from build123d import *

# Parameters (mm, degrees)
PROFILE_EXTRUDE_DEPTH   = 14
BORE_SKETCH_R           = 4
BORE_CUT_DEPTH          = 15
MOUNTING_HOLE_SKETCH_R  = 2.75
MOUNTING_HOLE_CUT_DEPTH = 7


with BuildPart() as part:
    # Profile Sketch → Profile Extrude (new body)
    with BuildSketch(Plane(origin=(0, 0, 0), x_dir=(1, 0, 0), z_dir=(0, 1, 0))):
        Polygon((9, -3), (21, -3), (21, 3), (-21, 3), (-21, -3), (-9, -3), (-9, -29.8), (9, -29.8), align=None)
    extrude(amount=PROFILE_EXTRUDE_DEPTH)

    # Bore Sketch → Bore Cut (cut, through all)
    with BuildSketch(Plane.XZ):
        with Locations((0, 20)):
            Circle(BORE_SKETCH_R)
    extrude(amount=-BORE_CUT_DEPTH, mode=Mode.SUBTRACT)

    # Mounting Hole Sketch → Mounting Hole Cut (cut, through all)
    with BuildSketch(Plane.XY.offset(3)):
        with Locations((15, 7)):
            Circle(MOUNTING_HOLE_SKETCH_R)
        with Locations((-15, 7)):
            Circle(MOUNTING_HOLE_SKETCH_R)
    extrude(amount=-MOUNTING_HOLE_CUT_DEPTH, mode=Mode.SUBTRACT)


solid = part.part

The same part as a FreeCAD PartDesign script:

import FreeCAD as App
import Part
import Sketcher

V = App.Vector
Q = App.Units.Quantity

doc = App.newDocument("Part")
body = doc.addObject("PartDesign::Body", "Body")

# Sketch on XZ plane
sketch1 = body.newObject("Sketcher::SketchObject", "Sketch")
sketch1.AttachmentSupport = (doc.getObject("XZ_Plane"), [""])
sketch1.MapMode = "FlatFace"
sketch1.addGeometry(Part.LineSegment(V(9, 3, 0), V(21, 3, 0)), False)
sketch1.addGeometry(Part.LineSegment(V(21, 3, 0), V(21, -3, 0)), False)
sketch1.addGeometry(Part.LineSegment(V(21, -3, 0), V(-21, -3, 0)), False)
sketch1.addGeometry(Part.LineSegment(V(-21, -3, 0), V(-21, 3, 0)), False)
sketch1.addGeometry(Part.LineSegment(V(-21, 3, 0), V(-9, 3, 0)), False)
sketch1.addGeometry(Part.LineSegment(V(-9, 3, 0), V(-9, 30, 0)), False)
sketch1.addGeometry(Part.LineSegment(V(-9, 30, 0), V(9, 30, 0)), False)
sketch1.addGeometry(Part.LineSegment(V(9, 30, 0), V(9, 3, 0)), False)
sketch1.addConstraint(Sketcher.Constraint("Coincident", 0, 2, 1, 1))
sketch1.addConstraint(Sketcher.Constraint("Coincident", 1, 2, 2, 1))
sketch1.addConstraint(Sketcher.Constraint("Coincident", 2, 2, 3, 1))
sketch1.addConstraint(Sketcher.Constraint("Coincident", 3, 2, 4, 1))
sketch1.addConstraint(Sketcher.Constraint("Coincident", 4, 2, 5, 1))
sketch1.addConstraint(Sketcher.Constraint("Coincident", 5, 2, 6, 1))
sketch1.addConstraint(Sketcher.Constraint("Coincident", 6, 2, 7, 1))
sketch1.addConstraint(Sketcher.Constraint("Coincident", 7, 2, 0, 1))
sketch1.addConstraint(Sketcher.Constraint("Horizontal", 0))
sketch1.addConstraint(Sketcher.Constraint("Vertical", 1))
sketch1.addConstraint(Sketcher.Constraint("Horizontal", 2))
sketch1.addConstraint(Sketcher.Constraint("Vertical", 3))
sketch1.addConstraint(Sketcher.Constraint("Horizontal", 4))
sketch1.addConstraint(Sketcher.Constraint("Vertical", 5))
sketch1.addConstraint(Sketcher.Constraint("Horizontal", 6))
sketch1.addConstraint(Sketcher.Constraint("Vertical", 7))
sketch1.addConstraint(Sketcher.Constraint("Symmetric", 0, 2, 2, 2, -1, 1))
sketch1.addConstraint(Sketcher.Constraint("Symmetric", 4, 2, 7, 2, -2))
sketch1.addConstraint(Sketcher.Constraint("DistanceX", 0, 1, 0, 2, Q("12 mm")))
sketch1.addConstraint(Sketcher.Constraint("DistanceX", 2, 2, 2, 1, Q("42 mm")))
sketch1.addConstraint(Sketcher.Constraint("DistanceY", 1, 2, 1, 1, Q("6 mm")))
sketch1.addConstraint(Sketcher.Constraint("DistanceY", 5, 1, 5, 2, Q("26.8 mm")))
pad1 = body.newObject("PartDesign::Pad", "Pad")
pad1.Profile = sketch1
pad1.Length = 14
pad1.Reversed = True

# Sketch on XZ plane
sketch2 = body.newObject("Sketcher::SketchObject", "Sketch001")
sketch2.AttachmentSupport = (doc.getObject("XZ_Plane"), [""])
sketch2.MapMode = "FlatFace"
sketch2.addGeometry(Part.Circle(V(0, 20, 0), V(0, 0, 1), 4), False)
sketch2.addConstraint(Sketcher.Constraint("PointOnObject", 0, 3, -2))
sketch2.addConstraint(Sketcher.Constraint("Diameter", 0, Q("8 mm")))
sketch2.addConstraint(Sketcher.Constraint("DistanceY", -1, 1, 0, 3, Q("20 mm")))
pocket1 = body.newObject("PartDesign::Pocket", "Pocket")
pocket1.Profile = sketch2
pocket1.Type = "ThroughAll"

# Sketch on XY plane
sketch3 = body.newObject("Sketcher::SketchObject", "Sketch002")
sketch3.AttachmentSupport = (doc.getObject("XY_Plane"), [""])
sketch3.MapMode = "FlatFace"
sketch3.AttachmentOffset = App.Placement(V(0, 0, 3), App.Rotation())
sketch3.addGeometry(Part.Circle(V(15, 7, 0), V(0, 0, 1), 2.8), False)
sketch3.addGeometry(Part.Circle(V(-15, 7, 0), V(0, 0, 1), 2.8), False)
sketch3.addConstraint(Sketcher.Constraint("Equal", 0, 1))
sketch3.addConstraint(Sketcher.Constraint("Symmetric", 0, 3, 1, 3, -2))
sketch3.addConstraint(Sketcher.Constraint("Diameter", 0, Q("5.5 mm")))
sketch3.addConstraint(Sketcher.Constraint("DistanceX", -1, 1, 0, 3, Q("15 mm")))
sketch3.addConstraint(Sketcher.Constraint("DistanceY", -1, 1, 0, 3, Q("7 mm")))
pocket2 = body.newObject("PartDesign::Pocket", "Pocket001")
pocket2.Profile = sketch3
pocket2.Type = "ThroughAll"

doc.recompute()
